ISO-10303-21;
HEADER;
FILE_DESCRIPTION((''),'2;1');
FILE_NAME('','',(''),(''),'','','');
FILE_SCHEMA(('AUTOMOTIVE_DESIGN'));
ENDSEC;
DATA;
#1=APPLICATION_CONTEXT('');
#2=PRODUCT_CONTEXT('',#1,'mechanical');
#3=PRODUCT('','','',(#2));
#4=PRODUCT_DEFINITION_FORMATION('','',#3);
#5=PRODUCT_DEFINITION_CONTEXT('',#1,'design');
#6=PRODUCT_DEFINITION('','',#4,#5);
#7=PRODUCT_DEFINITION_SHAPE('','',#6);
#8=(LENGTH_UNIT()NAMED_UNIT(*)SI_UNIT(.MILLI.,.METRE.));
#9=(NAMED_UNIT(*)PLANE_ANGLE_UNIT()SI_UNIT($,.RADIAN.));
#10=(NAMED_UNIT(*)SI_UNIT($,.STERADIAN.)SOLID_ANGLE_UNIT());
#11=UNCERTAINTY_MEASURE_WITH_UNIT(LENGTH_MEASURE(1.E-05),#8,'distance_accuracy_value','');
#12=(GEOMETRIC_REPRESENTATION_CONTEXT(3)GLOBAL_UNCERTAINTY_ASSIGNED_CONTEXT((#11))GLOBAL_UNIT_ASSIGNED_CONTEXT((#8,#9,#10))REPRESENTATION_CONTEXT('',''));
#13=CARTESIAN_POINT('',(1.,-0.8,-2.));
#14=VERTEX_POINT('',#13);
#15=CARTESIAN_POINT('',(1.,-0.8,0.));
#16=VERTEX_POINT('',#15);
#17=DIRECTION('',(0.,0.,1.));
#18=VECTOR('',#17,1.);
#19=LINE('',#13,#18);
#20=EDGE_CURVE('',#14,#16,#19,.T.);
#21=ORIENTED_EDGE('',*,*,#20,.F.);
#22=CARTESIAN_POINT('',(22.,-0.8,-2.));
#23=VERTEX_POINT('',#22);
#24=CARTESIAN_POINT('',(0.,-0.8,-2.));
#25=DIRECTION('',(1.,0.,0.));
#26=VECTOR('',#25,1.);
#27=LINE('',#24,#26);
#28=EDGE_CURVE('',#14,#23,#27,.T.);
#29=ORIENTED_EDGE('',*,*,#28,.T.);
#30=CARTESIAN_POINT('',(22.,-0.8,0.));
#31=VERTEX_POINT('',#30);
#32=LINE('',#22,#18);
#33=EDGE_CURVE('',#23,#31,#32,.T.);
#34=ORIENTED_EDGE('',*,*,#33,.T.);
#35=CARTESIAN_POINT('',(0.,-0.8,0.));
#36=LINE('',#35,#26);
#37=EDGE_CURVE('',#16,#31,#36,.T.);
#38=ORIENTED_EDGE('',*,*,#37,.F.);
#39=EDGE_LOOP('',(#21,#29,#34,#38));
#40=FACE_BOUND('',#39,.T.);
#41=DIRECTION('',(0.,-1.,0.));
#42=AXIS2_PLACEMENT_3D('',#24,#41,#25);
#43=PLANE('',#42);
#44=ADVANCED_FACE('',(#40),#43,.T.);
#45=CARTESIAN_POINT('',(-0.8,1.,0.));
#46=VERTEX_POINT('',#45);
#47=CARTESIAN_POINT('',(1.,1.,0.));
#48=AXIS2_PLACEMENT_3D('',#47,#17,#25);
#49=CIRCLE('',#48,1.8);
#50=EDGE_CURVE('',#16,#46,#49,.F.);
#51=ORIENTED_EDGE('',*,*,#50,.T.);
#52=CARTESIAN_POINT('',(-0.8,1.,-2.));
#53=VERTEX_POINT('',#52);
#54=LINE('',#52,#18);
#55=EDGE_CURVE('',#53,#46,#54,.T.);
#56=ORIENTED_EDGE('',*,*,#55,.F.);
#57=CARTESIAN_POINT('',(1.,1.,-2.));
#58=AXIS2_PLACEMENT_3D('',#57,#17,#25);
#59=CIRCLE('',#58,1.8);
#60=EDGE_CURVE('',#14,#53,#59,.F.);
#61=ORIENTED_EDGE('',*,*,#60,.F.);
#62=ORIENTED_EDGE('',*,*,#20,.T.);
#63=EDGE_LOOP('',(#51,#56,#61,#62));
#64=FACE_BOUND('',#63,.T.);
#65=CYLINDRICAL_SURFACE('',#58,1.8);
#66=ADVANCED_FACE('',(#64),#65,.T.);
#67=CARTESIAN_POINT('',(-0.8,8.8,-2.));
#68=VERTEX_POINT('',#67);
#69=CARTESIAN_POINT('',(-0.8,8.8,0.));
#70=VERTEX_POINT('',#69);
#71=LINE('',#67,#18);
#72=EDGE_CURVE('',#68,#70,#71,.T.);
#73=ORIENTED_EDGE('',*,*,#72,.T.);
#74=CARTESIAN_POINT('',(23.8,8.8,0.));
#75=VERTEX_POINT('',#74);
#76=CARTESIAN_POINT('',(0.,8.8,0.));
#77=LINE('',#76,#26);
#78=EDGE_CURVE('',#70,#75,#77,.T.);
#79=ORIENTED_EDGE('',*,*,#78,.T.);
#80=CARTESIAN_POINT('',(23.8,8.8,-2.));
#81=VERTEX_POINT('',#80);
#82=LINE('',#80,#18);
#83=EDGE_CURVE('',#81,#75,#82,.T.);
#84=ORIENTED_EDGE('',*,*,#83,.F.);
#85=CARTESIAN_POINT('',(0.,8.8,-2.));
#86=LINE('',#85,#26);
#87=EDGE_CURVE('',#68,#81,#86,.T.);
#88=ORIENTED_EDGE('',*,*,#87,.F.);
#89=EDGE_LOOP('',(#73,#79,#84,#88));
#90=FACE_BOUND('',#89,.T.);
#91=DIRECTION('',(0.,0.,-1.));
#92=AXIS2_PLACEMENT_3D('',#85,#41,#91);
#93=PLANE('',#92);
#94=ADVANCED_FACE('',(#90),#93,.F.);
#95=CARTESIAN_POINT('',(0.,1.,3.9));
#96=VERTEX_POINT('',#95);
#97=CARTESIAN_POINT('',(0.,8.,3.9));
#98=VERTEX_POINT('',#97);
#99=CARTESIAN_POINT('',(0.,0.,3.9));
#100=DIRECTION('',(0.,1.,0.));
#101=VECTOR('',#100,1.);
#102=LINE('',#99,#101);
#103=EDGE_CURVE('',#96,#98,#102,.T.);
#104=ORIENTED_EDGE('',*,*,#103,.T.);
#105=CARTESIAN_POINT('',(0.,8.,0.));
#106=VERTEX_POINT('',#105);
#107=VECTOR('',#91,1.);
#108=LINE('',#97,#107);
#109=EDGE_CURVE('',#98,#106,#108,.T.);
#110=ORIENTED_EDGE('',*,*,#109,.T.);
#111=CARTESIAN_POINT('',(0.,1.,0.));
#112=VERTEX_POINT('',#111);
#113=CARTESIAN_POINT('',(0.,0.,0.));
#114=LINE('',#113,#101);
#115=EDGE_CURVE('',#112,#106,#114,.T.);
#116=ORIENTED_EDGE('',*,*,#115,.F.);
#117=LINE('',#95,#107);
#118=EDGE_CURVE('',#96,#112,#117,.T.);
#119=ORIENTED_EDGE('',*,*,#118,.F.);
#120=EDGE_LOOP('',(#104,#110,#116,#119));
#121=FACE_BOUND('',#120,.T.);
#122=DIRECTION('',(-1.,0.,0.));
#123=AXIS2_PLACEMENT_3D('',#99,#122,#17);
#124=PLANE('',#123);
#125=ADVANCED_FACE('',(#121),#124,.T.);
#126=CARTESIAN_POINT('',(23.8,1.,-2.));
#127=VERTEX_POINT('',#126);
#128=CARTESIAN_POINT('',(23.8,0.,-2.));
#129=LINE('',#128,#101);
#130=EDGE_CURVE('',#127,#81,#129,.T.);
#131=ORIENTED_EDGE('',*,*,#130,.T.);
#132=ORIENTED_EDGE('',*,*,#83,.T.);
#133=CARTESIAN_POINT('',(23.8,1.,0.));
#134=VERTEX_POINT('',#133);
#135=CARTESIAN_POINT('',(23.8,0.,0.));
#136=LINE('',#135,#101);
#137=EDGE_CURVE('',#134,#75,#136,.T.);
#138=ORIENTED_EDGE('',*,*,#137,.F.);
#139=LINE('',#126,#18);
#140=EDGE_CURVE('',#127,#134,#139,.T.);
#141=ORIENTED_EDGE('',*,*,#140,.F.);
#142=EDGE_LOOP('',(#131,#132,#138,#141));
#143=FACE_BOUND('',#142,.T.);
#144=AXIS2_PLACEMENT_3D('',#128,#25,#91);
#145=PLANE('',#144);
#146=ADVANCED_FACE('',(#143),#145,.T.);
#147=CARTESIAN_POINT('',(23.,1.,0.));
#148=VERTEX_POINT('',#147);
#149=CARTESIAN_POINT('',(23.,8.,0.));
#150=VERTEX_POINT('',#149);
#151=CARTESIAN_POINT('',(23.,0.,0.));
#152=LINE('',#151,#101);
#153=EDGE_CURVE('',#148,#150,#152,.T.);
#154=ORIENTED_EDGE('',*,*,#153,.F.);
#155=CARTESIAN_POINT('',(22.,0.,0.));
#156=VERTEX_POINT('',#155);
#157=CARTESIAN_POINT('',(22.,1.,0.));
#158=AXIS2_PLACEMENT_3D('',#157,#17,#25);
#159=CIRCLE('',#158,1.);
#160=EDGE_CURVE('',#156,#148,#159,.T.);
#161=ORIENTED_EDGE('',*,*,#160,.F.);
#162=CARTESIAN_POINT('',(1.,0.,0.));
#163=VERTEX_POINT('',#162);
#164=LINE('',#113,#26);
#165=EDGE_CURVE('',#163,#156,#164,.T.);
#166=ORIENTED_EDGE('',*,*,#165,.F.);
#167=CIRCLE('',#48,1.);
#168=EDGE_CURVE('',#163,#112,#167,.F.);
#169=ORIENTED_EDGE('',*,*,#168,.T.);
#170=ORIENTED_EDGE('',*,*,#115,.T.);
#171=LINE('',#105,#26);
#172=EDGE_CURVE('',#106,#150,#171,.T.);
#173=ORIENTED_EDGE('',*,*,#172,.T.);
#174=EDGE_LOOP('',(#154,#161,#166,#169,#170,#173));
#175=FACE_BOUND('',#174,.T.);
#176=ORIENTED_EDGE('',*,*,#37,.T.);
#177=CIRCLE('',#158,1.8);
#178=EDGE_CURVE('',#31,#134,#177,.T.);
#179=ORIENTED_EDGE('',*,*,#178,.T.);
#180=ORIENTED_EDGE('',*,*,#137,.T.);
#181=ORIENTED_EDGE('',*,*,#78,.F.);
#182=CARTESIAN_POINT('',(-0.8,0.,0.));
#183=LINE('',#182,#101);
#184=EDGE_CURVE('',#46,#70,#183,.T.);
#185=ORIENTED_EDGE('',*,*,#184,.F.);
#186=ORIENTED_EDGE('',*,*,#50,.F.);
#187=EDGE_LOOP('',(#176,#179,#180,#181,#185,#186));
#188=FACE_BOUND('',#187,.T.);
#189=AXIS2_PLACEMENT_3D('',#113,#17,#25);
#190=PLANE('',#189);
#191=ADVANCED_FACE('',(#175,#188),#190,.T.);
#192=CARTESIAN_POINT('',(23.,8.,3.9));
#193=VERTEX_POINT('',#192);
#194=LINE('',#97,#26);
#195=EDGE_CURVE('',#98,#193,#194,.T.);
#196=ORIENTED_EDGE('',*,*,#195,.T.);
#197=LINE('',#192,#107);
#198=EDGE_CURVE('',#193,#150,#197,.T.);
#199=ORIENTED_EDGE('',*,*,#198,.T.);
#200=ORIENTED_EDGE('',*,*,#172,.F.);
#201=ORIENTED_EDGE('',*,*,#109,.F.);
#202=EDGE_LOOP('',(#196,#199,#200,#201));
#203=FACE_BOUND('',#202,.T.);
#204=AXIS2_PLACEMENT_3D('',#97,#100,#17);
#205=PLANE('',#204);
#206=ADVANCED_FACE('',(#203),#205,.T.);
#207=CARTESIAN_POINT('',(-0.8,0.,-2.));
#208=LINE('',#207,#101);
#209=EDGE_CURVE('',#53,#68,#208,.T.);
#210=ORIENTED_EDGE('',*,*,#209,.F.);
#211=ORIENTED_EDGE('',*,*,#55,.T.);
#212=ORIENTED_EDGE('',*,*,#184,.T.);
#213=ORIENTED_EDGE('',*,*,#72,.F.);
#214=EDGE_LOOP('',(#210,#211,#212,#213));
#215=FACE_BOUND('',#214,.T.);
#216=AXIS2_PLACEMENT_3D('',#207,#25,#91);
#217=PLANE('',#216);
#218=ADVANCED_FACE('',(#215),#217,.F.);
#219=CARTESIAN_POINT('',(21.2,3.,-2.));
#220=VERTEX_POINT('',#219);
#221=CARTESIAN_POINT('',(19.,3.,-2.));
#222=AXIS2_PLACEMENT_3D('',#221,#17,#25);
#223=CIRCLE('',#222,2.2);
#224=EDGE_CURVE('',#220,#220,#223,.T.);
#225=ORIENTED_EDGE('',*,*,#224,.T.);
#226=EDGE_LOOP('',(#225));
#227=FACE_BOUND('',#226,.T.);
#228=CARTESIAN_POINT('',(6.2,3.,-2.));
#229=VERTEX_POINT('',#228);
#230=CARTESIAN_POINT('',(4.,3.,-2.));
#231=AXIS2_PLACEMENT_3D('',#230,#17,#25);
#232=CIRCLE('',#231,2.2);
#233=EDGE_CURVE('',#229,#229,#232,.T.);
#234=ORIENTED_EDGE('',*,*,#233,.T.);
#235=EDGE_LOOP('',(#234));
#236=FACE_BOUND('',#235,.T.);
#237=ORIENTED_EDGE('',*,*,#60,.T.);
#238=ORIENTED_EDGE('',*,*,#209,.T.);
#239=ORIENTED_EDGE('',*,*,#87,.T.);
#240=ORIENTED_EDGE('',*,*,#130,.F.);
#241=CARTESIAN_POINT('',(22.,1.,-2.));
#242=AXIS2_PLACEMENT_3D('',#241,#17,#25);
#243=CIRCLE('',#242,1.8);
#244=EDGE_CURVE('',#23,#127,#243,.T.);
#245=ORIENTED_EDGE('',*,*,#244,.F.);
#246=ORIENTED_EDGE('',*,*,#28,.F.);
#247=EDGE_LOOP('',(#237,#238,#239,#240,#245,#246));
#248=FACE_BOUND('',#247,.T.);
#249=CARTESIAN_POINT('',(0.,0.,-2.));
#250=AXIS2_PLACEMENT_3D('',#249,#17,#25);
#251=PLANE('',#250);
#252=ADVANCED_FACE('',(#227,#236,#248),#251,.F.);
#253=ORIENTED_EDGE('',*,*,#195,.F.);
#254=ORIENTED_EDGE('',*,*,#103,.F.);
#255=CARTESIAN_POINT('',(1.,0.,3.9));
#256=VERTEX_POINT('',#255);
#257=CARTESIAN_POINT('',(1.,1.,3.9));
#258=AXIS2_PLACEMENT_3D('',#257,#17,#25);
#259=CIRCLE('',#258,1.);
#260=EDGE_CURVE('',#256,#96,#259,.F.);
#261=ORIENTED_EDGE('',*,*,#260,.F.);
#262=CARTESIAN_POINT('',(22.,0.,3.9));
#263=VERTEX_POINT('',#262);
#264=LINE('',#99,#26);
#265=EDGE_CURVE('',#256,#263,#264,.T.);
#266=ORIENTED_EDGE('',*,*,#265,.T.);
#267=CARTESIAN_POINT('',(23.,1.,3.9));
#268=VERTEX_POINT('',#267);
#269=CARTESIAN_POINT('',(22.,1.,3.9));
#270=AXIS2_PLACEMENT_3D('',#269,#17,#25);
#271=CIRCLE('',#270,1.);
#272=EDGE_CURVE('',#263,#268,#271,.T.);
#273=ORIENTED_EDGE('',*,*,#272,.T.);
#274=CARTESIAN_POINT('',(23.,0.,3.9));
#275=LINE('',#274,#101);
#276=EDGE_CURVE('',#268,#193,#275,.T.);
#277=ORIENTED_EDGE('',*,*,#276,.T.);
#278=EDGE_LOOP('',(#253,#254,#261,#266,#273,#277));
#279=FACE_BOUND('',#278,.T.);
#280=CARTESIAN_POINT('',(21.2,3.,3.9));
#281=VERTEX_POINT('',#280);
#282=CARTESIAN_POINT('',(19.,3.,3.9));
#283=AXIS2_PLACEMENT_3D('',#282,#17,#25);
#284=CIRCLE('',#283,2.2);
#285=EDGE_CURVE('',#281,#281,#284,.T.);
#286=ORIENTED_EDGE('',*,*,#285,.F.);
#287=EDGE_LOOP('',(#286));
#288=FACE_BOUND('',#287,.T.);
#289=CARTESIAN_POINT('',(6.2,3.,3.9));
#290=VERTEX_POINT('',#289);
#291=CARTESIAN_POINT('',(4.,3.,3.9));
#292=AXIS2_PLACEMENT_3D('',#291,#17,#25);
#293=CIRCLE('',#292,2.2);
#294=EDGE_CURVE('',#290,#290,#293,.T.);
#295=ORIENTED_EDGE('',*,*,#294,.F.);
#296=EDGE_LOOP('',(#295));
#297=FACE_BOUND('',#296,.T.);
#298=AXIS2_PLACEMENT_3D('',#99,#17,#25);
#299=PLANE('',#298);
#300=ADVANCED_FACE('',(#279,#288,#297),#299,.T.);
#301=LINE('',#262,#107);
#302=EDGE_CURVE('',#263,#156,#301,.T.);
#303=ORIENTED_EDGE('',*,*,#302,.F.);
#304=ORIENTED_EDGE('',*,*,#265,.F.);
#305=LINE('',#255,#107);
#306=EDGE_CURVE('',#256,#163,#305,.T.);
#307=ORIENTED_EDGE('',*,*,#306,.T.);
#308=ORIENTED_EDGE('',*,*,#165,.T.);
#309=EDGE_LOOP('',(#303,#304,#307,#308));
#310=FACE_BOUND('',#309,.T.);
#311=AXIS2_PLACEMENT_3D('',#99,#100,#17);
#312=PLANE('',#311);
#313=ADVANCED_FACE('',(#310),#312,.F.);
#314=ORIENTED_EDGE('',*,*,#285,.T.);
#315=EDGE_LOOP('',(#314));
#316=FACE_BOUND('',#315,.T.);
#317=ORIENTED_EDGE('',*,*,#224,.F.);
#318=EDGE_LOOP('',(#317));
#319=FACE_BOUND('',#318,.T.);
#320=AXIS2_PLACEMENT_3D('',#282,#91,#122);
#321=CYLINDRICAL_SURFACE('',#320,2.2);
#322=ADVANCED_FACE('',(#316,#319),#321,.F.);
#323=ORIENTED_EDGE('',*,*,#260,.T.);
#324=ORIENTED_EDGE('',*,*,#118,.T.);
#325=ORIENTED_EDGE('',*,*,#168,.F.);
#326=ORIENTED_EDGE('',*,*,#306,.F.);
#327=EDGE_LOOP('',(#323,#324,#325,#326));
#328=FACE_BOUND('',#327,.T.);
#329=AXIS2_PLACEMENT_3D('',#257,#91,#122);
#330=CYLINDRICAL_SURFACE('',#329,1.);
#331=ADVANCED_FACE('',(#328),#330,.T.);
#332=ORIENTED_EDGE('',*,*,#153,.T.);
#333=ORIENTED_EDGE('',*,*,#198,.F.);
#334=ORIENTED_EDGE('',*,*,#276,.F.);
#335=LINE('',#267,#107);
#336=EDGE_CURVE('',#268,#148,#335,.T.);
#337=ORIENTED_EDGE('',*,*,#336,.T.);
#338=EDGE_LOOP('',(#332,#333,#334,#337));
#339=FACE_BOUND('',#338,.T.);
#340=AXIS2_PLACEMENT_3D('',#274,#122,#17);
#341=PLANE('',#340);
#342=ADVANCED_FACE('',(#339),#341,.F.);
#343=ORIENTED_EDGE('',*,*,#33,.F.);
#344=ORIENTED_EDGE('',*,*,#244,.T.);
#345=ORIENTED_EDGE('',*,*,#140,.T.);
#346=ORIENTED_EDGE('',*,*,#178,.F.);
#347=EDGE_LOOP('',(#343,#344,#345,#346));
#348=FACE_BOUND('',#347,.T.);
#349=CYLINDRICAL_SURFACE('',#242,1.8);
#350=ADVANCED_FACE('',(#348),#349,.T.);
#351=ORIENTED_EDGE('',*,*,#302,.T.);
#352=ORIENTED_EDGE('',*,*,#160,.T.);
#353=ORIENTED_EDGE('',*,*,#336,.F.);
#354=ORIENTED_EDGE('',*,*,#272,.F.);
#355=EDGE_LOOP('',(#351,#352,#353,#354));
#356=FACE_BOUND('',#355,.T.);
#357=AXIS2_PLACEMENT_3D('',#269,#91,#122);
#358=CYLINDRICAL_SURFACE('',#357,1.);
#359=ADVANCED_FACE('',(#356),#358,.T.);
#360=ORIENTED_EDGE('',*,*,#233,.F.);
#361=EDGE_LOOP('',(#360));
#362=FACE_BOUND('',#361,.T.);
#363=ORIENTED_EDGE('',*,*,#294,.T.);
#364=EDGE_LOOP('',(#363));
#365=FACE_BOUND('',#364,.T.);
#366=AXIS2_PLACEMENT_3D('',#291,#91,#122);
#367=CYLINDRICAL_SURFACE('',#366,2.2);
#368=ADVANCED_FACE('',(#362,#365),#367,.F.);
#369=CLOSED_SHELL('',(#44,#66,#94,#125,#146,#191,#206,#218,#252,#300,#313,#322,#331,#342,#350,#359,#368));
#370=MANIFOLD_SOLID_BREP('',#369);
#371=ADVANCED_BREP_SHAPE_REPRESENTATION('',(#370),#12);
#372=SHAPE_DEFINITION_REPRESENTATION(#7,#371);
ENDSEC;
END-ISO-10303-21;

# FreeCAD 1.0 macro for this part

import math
import FreeCAD as App
import Part
import Sketcher
from FreeCAD import Vector

doc = App.newDocument("Part")
params = doc.addObject("Spreadsheet::Sheet", "Params")
for row, (alias, value) in enumerate([
    ("sketch1_radius", "1 mm"),
    ("sketch1_diameter", "4.4 mm"),
    ("sketch1_width", "21 mm"),
    ("sketch1_height", "7 mm"),
    ("pad1_length", "3.9 mm"),
    ("sketch2_diameter", "4.4 mm"),
    ("sketch2_radius", "1.8 mm"),
    ("sketch2_width", "21 mm"),
    ("sketch2_height", "7.8 mm"),
    ("pad2_length", "2 mm"),
], start=1):
    params.set(f"A{row}", alias)
    params.set(f"B{row}", "=" + value)
    params.setAlias(f"B{row}", alias)

body = doc.addObject("PartDesign::Body", "Body")

sketch1 = body.newObject("Sketcher::SketchObject", "Sketch")
sketch1.AttachmentSupport = (doc.getObject("XY_Plane"), [""])
sketch1.MapMode = "FlatFace"
sketch1.addGeometry([
    Part.LineSegment(Vector(1, 0, 0), Vector(22, 0, 0)),
    Part.ArcOfCircle(Part.Circle(Vector(22, 1, 0), Vector(0, 0, 1), 1), math.radians(-90), math.radians(0)),
    Part.LineSegment(Vector(23, 1, 0), Vector(23, 8, 0)),
    Part.LineSegment(Vector(23, 8, 0), Vector(0, 8, 0)),
    Part.LineSegment(Vector(0, 8, 0), Vector(0, 1, 0)),
    Part.ArcOfCircle(Part.Circle(Vector(1, 1, 0), Vector(0, 0, 1), 1), math.radians(-180), math.radians(-90)),
    Part.Circle(Vector(4, 3, 0), Vector(0, 0, 1), 2.2),
    Part.Circle(Vector(19, 3, 0), Vector(0, 0, 1), 2.2),
], False)
sketch1.addConstraint([
    Sketcher.Constraint("Tangent", 0, 2, 1, 1),
    Sketcher.Constraint("Tangent", 1, 2, 2, 1),
    Sketcher.Constraint("Coincident", 2, 2, 3, 1),
    Sketcher.Constraint("Coincident", 3, 2, 4, 1),
    Sketcher.Constraint("Tangent", 4, 2, 5, 1),
    Sketcher.Constraint("Tangent", 5, 2, 0, 1),
    Sketcher.Constraint("Horizontal", 0),
    Sketcher.Constraint("Vertical", 2),
    Sketcher.Constraint("Horizontal", 3),
    Sketcher.Constraint("Vertical", 4),
    Sketcher.Constraint("Equal", 1, 5),
    Sketcher.Constraint("Equal", 6, 7),
    Sketcher.Constraint("PointOnObject", 0, 2, -1),
    Sketcher.Constraint("PointOnObject", 3, 2, -2),
    Sketcher.Constraint("Horizontal", 6, 3, 7, 3),
    Sketcher.Constraint("Radius", 1, 1.0),
    Sketcher.Constraint("Diameter", 6, 4.4),
    Sketcher.Constraint("DistanceX", 0, 1, 0, 2, 21.0),
    Sketcher.Constraint("DistanceY", 2, 1, 2, 2, 7.0),
    Sketcher.Constraint("DistanceX", -1, 1, 6, 3, 4.0),
    Sketcher.Constraint("DistanceY", -1, 1, 6, 3, 3.0),
    Sketcher.Constraint("DistanceX", -1, 1, 7, 3, 19.0),
])
sketch1.setExpression("Constraints[15]", "Params.sketch1_radius")
sketch1.setExpression("Constraints[16]", "Params.sketch1_diameter")
sketch1.setExpression("Constraints[17]", "Params.sketch1_width")
sketch1.setExpression("Constraints[18]", "Params.sketch1_height")
pad1 = body.newObject("PartDesign::Pad", "Pad")
pad1.Profile = sketch1
pad1.setExpression("Length", "Params.pad1_length")

sketch2 = body.newObject("Sketcher::SketchObject", "Sketch001")
sketch2.AttachmentSupport = (doc.getObject("XY_Plane"), [""])
sketch2.MapMode = "FlatFace"
sketch2.AttachmentOffset = App.Placement(Vector(0, 0, -2), App.Rotation())
sketch2.addGeometry([
    Part.LineSegment(Vector(-0.8, 8.8, 0), Vector(-0.8, 1, 0)),
    Part.ArcOfCircle(Part.Circle(Vector(1, 1, 0), Vector(0, 0, 1), 1.8), math.radians(180), math.radians(270)),
    Part.LineSegment(Vector(1, -0.8, 0), Vector(22, -0.8, 0)),
    Part.ArcOfCircle(Part.Circle(Vector(22, 1, 0), Vector(0, 0, 1), 1.8), math.radians(-90), math.radians(0)),
    Part.LineSegment(Vector(23.8, 1, 0), Vector(23.8, 8.8, 0)),
    Part.LineSegment(Vector(23.8, 8.8, 0), Vector(-0.8, 8.8, 0)),
    Part.Circle(Vector(4, 3, 0), Vector(0, 0, 1), 2.2),
    Part.Circle(Vector(19, 3, 0), Vector(0, 0, 1), 2.2),
], False)
sketch2.addConstraint([
    Sketcher.Constraint("Tangent", 0, 2, 1, 1),
    Sketcher.Constraint("Tangent", 1, 2, 2, 1),
    Sketcher.Constraint("Tangent", 2, 2, 3, 1),
    Sketcher.Constraint("Tangent", 3, 2, 4, 1),
    Sketcher.Constraint("Coincident", 4, 2, 5, 1),
    Sketcher.Constraint("Coincident", 5, 2, 0, 1),
    Sketcher.Constraint("Vertical", 0),
    Sketcher.Constraint("Horizontal", 2),
    Sketcher.Constraint("Vertical", 4),
    Sketcher.Constraint("Horizontal", 5),
    Sketcher.Constraint("Equal", 1, 3),
    Sketcher.Constraint("Equal", 6, 7),
    Sketcher.Constraint("Horizontal", 6, 3, 7, 3),
    Sketcher.Constraint("Diameter", 6, 4.4),
    Sketcher.Constraint("Radius", 1, 1.8),
    Sketcher.Constraint("DistanceX", 2, 1, 2, 2, 21.0),
    Sketcher.Constraint("DistanceY", 0, 2, 0, 1, 7.8),
    Sketcher.Constraint("DistanceX", -1, 1, 1, 3, 1.0),
    Sketcher.Constraint("DistanceY", -1, 1, 1, 3, 1.0),
    Sketcher.Constraint("DistanceX", -1, 1, 6, 3, 4.0),
    Sketcher.Constraint("DistanceY", -1, 1, 6, 3, 3.0),
    Sketcher.Constraint("DistanceX", -1, 1, 7, 3, 19.0),
])
sketch2.setExpression("Constraints[13]", "Params.sketch2_diameter")
sketch2.setExpression("Constraints[14]", "Params.sketch2_radius")
sketch2.setExpression("Constraints[15]", "Params.sketch2_width")
sketch2.setExpression("Constraints[16]", "Params.sketch2_height")
pad2 = body.newObject("PartDesign::Pad", "Pad001")
pad2.Profile = sketch2
pad2.setExpression("Length", "Params.pad2_length")

doc.recompute()
